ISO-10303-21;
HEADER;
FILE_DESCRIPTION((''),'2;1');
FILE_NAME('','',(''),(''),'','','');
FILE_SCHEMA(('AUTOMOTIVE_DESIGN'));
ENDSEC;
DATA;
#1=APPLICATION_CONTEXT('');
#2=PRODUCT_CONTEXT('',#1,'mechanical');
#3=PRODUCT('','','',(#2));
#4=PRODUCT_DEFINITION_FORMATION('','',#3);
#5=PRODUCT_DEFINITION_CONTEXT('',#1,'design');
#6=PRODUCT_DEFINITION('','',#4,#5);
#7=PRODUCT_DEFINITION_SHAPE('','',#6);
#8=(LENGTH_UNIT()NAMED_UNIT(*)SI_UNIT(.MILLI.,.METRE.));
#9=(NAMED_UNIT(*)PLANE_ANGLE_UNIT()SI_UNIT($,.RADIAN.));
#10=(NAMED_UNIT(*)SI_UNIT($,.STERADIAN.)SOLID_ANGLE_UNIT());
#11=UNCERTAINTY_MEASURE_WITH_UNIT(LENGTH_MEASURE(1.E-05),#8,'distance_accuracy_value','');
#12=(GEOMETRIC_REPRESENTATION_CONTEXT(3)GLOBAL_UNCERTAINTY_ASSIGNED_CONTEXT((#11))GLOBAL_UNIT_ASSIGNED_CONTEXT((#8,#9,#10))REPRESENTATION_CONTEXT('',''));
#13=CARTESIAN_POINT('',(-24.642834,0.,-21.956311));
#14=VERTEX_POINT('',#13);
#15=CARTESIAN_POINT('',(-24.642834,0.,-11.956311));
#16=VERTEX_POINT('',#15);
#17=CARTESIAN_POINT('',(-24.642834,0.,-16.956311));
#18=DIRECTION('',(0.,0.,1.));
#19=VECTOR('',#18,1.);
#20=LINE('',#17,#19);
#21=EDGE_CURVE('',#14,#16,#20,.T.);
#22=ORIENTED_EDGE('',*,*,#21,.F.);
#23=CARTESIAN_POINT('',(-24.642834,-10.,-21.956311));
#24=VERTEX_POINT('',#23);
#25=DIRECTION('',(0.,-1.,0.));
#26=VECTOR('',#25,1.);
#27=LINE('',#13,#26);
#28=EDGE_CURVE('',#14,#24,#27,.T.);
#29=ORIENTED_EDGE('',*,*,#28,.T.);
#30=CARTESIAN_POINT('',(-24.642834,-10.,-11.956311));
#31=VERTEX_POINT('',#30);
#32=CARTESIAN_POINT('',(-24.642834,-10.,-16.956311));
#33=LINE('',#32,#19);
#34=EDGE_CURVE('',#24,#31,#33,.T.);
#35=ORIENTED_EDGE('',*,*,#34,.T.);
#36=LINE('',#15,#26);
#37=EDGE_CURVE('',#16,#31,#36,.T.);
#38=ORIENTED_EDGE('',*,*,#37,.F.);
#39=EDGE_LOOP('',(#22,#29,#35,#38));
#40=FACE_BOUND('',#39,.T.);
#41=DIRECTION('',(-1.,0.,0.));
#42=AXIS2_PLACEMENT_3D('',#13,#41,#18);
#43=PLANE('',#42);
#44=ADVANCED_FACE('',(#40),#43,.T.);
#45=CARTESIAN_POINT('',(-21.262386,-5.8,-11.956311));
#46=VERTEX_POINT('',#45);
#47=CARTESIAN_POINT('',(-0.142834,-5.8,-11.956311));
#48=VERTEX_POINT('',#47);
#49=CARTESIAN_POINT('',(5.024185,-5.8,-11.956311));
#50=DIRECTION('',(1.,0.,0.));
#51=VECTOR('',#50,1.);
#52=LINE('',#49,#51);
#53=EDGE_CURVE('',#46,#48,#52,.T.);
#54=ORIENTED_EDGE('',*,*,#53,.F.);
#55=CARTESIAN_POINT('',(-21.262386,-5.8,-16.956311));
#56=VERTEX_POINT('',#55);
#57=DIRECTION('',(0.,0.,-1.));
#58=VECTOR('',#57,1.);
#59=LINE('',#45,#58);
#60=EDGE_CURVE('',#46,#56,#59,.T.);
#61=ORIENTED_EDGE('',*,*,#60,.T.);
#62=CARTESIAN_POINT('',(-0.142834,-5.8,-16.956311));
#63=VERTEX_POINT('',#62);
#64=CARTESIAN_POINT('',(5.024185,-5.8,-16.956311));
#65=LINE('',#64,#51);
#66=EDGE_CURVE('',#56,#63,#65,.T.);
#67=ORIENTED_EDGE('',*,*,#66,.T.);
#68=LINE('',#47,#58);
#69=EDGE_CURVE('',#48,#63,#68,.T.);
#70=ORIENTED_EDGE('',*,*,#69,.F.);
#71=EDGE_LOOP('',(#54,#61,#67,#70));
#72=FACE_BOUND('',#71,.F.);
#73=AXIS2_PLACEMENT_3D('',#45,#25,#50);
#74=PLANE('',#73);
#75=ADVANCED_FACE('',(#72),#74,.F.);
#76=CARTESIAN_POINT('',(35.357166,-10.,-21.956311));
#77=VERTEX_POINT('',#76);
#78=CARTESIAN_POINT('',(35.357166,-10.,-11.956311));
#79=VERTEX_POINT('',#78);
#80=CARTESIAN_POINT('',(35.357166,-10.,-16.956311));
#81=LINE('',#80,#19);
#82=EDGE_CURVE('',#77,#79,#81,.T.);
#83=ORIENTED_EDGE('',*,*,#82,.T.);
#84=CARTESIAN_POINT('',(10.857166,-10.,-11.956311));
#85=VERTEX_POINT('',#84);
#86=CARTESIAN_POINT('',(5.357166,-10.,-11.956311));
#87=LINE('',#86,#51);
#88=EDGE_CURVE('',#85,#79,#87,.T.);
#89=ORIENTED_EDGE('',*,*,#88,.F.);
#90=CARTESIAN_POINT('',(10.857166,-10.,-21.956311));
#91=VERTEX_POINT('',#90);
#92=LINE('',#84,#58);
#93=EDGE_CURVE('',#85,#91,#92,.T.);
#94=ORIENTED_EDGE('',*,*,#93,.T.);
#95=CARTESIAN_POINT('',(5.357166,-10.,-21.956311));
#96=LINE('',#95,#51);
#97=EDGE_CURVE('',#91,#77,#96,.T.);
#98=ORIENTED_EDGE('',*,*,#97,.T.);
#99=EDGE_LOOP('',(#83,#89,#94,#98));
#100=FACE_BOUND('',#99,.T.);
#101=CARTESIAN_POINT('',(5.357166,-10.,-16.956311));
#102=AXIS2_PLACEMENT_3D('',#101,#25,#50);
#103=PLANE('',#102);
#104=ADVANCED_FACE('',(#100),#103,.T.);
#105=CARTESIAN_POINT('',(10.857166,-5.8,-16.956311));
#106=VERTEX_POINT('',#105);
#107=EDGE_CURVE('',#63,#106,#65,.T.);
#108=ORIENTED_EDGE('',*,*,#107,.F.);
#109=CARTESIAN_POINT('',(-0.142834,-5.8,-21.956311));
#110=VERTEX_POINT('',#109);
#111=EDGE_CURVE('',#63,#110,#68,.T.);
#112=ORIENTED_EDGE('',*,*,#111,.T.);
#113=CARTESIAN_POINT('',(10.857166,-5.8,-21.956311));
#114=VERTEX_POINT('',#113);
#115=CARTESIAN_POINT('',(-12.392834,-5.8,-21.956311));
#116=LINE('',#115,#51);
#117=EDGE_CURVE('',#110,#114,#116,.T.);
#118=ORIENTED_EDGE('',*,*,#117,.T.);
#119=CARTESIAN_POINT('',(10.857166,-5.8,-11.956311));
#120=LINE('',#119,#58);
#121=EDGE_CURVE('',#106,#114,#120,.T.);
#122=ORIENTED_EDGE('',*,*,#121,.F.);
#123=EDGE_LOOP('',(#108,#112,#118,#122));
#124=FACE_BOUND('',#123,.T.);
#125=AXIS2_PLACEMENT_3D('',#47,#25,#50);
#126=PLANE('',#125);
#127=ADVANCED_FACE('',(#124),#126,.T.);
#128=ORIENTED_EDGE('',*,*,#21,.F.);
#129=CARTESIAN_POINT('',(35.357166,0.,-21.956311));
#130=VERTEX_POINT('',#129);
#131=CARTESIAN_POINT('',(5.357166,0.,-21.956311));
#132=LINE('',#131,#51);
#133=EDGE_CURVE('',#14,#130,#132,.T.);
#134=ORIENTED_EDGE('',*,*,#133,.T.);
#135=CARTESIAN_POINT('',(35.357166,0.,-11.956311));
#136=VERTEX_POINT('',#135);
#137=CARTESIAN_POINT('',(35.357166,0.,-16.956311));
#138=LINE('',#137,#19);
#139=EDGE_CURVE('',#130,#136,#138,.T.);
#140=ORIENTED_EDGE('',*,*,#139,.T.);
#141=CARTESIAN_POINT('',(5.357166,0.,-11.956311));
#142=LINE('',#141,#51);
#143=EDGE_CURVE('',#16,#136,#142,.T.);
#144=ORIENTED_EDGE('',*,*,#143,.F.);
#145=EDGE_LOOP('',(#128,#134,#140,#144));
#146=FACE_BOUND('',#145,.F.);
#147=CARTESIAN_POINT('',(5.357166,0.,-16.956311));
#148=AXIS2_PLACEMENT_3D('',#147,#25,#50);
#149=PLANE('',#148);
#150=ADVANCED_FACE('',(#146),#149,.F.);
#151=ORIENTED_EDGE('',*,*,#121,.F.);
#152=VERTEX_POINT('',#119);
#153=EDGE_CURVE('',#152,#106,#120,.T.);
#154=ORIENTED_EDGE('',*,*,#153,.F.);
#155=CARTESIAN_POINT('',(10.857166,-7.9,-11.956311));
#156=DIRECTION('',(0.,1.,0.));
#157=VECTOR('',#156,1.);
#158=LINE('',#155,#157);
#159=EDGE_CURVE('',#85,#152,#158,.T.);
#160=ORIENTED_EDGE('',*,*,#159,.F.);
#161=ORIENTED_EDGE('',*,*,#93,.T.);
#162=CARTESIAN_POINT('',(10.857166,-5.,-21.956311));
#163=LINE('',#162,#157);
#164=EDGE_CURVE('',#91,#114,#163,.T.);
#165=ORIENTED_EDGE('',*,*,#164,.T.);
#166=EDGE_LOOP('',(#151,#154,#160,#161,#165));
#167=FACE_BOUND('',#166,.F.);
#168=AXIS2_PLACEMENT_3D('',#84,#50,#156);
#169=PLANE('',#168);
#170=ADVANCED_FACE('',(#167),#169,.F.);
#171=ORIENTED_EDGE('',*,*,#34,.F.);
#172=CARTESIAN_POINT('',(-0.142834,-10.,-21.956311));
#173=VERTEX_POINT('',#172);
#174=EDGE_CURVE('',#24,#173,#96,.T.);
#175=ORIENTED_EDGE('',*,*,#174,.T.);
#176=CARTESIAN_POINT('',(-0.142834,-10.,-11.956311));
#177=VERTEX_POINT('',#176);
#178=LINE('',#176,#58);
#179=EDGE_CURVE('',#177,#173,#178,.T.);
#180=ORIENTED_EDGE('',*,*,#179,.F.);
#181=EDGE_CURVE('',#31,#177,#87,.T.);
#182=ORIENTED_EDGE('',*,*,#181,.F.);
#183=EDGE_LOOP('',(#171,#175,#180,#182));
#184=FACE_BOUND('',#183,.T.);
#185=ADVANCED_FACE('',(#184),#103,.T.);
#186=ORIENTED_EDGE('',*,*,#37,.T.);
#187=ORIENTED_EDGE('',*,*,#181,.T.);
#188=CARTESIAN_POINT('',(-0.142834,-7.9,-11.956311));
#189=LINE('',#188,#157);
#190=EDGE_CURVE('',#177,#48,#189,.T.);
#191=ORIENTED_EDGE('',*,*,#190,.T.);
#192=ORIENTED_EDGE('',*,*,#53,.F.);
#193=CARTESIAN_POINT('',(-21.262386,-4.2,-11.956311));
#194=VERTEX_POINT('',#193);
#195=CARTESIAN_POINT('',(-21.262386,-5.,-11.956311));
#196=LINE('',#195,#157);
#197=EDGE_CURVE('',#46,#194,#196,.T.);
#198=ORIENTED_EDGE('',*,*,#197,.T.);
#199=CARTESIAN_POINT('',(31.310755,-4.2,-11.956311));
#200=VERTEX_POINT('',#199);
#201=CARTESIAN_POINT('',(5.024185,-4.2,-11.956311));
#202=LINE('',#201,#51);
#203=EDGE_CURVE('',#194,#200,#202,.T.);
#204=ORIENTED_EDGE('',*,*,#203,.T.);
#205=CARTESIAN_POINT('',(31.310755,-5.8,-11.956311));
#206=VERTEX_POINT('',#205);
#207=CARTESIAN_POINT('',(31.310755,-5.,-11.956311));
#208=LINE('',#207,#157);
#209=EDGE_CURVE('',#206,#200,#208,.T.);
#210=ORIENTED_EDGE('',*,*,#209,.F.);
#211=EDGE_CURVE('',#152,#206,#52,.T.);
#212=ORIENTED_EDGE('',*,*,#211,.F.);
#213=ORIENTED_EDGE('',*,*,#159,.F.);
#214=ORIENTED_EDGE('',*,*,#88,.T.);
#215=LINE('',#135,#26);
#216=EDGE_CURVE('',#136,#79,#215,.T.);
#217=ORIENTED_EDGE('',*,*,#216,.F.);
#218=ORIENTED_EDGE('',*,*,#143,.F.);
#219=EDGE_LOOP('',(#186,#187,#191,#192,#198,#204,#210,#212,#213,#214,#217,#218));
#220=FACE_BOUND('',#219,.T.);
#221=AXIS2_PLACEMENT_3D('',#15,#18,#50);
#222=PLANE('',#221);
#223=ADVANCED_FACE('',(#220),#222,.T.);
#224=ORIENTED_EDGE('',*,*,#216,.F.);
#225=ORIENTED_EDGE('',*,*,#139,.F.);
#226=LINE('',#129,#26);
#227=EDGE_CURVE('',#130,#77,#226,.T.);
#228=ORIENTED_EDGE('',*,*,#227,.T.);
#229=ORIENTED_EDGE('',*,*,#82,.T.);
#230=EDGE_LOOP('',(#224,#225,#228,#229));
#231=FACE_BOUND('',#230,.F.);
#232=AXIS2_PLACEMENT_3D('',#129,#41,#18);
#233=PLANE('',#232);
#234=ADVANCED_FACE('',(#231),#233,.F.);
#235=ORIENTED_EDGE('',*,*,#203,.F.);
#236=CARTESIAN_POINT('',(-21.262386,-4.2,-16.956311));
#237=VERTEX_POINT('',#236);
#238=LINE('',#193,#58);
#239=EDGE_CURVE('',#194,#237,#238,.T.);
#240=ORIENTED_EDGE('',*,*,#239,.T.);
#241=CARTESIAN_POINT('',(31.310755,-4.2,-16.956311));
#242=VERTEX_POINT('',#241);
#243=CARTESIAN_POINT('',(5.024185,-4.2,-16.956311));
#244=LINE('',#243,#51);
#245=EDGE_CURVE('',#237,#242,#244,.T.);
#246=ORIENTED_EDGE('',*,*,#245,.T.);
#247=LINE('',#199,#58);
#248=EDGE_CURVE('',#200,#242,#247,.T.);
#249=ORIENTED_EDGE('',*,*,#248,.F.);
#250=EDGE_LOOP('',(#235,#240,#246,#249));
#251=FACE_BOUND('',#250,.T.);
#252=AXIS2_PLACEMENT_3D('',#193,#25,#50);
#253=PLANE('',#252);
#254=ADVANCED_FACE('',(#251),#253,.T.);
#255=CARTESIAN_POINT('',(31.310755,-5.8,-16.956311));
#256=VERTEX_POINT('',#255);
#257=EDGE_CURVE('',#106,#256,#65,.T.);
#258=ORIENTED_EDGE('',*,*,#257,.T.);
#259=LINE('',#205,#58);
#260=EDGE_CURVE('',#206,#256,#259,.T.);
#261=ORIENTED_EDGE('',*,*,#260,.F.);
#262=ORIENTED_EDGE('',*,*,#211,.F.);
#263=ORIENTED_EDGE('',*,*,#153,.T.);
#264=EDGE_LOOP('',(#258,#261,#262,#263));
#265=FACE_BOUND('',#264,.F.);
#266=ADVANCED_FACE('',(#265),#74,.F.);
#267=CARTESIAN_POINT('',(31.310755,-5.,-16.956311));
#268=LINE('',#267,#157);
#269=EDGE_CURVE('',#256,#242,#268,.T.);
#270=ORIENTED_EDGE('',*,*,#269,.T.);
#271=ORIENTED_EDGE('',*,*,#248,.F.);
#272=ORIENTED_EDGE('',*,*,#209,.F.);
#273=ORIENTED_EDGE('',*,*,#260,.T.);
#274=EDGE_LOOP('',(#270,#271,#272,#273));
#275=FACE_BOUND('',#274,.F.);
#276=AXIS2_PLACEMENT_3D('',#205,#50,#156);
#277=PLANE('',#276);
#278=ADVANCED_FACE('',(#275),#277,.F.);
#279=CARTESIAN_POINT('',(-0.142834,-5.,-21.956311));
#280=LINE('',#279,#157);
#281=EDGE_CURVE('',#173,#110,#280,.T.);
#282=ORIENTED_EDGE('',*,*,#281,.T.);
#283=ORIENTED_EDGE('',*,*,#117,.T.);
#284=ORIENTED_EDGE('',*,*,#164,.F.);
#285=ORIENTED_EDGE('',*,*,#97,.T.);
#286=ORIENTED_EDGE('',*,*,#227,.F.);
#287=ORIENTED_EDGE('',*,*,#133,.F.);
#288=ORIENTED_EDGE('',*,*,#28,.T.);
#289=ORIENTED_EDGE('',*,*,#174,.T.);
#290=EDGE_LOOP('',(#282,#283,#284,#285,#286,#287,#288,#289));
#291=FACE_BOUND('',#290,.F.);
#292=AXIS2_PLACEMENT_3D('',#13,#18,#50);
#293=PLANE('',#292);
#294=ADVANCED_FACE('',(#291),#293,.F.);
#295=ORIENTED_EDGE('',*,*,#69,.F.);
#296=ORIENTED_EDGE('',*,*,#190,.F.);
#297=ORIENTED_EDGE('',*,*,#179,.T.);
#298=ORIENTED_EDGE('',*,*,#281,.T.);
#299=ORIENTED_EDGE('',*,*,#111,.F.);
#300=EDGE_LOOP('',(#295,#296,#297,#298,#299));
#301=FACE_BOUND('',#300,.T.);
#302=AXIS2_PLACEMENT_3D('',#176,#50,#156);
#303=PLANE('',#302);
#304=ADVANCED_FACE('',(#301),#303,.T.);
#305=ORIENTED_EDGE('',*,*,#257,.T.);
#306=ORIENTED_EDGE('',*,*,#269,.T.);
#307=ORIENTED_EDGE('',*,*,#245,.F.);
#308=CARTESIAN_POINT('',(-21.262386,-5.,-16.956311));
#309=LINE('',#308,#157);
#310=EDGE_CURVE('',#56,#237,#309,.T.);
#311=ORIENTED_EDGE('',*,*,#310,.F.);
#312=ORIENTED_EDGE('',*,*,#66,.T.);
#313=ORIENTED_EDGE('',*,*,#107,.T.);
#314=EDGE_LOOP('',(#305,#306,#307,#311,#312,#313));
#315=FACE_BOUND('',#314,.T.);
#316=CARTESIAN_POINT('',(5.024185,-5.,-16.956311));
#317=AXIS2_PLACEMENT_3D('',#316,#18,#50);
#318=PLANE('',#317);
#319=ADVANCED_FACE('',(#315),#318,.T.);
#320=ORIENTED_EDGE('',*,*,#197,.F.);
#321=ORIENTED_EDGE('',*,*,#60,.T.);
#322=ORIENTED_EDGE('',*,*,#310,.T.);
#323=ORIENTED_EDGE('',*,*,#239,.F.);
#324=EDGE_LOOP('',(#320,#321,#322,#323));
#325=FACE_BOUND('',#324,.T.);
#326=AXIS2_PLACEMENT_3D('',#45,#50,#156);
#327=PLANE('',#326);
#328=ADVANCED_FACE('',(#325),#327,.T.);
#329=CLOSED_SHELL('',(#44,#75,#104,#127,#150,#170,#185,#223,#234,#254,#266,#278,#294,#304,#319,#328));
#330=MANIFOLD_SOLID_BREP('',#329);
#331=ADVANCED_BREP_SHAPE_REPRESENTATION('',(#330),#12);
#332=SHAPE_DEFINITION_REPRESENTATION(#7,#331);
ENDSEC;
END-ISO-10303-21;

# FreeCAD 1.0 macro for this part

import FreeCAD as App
import Part
import Sketcher
from FreeCAD import Vector


def add_polygon(sketch, points):
    """Adds a closed chain of lines whose ends are joined by coincident constraints."""
    first, n = sketch.GeometryCount, len(points)
    for a, b in zip(points, points[1:] + points[:1]):
        sketch.addGeometry(Part.LineSegment(App.Vector(*a, 0), App.Vector(*b, 0)), False)
    for i in range(n):
        sketch.addConstraint(Sketcher.Constraint("Coincident", first + i, 2, first + (i + 1) % n, 1))

doc = App.newDocument("Part")
body = doc.addObject("PartDesign::Body", "Body")

# Sketch on XZ plane
sketch1 = body.newObject("Sketcher::SketchObject", "Sketch")
sketch1.AttachmentSupport = (doc.getObject("XZ_Plane"), [""])
sketch1.MapMode = "FlatFace"
add_polygon(sketch1, [(-25, -12), (-25, -22), (35, -22), (35, -12)])  # lines 0-3
sketch1.addConstraint(Sketcher.Constraint("Vertical", 0))
sketch1.addConstraint(Sketcher.Constraint("Horizontal", 1))
sketch1.addConstraint(Sketcher.Constraint("Vertical", 2))
sketch1.addConstraint(Sketcher.Constraint("Horizontal", 3))
sketch1.addConstraint(Sketcher.Constraint("DistanceX", 1, 1, 1, 2, 60.0))
sketch1.addConstraint(Sketcher.Constraint("DistanceY", 0, 2, 0, 1, 10.0))
sketch1.addConstraint(Sketcher.Constraint("DistanceY", 0, 2, -1, 1, 21.956311))
sketch1.addConstraint(Sketcher.Constraint("DistanceX", 0, 2, -1, 1, 24.642834))
pad1 = body.newObject("PartDesign::Pad", "Pad")
pad1.Profile = sketch1
pad1.Length = 10

# Sketch on XY plane
sketch2 = body.newObject("Sketcher::SketchObject", "Sketch001")
sketch2.AttachmentSupport = (doc.getObject("XY_Plane"), [""])
sketch2.MapMode = "FlatFace"
sketch2.AttachmentOffset = App.Placement(Vector(0, 0, -11.956311), App.Rotation())
add_polygon(sketch2, [(-21.3, -4.2), (-21.3, -5.8), (31.3, -5.8), (31.3, -4.2)])  # lines 0-3
sketch2.addConstraint(Sketcher.Constraint("Vertical", 0))
sketch2.addConstraint(Sketcher.Constraint("Horizontal", 1))
sketch2.addConstraint(Sketcher.Constraint("Vertical", 2))
sketch2.addConstraint(Sketcher.Constraint("Horizontal", 3))
sketch2.addConstraint(Sketcher.Constraint("DistanceY", 0, 2, 0, 1, 1.6))
sketch2.addConstraint(Sketcher.Constraint("DistanceY", 0, 2, -1, 1, 5.8))
sketch2.addConstraint(Sketcher.Constraint("DistanceX", 1, 1, 1, 2, 52.573141))
sketch2.addConstraint(Sketcher.Constraint("DistanceX", 0, 2, -1, 1, 21.262386))
pocket1 = body.newObject("PartDesign::Pocket", "Pocket")
pocket1.Profile = sketch2
pocket1.Length = 5

# Sketch on XY plane
sketch3 = body.newObject("Sketcher::SketchObject", "Sketch002")
sketch3.AttachmentSupport = (doc.getObject("XY_Plane"), [""])
sketch3.MapMode = "FlatFace"
sketch3.AttachmentOffset = App.Placement(Vector(0, 0, -11.956311), App.Rotation())
add_polygon(sketch3, [(-0.1, -5.8), (-0.1, -10), (10.9, -10), (10.9, -5.8)])  # lines 0-3
sketch3.addConstraint(Sketcher.Constraint("Vertical", 0))
sketch3.addConstraint(Sketcher.Constraint("Horizontal", 1))
sketch3.addConstraint(Sketcher.Constraint("Vertical", 2))
sketch3.addConstraint(Sketcher.Constraint("Horizontal", 3))
sketch3.addConstraint(Sketcher.Constraint("DistanceX", 1, 1, 1, 2, 11.0))
sketch3.addConstraint(Sketcher.Constraint("DistanceY", 0, 2, 0, 1, 4.2))
sketch3.addConstraint(Sketcher.Constraint("DistanceY", 0, 2, -1, 1, 10.0))
sketch3.addConstraint(Sketcher.Constraint("DistanceX", 0, 2, -1, 1, 0.142834))
pocket2 = body.newObject("PartDesign::Pocket", "Pocket001")
pocket2.Profile = sketch3
pocket2.Type = "ThroughAll"

doc.recompute()
